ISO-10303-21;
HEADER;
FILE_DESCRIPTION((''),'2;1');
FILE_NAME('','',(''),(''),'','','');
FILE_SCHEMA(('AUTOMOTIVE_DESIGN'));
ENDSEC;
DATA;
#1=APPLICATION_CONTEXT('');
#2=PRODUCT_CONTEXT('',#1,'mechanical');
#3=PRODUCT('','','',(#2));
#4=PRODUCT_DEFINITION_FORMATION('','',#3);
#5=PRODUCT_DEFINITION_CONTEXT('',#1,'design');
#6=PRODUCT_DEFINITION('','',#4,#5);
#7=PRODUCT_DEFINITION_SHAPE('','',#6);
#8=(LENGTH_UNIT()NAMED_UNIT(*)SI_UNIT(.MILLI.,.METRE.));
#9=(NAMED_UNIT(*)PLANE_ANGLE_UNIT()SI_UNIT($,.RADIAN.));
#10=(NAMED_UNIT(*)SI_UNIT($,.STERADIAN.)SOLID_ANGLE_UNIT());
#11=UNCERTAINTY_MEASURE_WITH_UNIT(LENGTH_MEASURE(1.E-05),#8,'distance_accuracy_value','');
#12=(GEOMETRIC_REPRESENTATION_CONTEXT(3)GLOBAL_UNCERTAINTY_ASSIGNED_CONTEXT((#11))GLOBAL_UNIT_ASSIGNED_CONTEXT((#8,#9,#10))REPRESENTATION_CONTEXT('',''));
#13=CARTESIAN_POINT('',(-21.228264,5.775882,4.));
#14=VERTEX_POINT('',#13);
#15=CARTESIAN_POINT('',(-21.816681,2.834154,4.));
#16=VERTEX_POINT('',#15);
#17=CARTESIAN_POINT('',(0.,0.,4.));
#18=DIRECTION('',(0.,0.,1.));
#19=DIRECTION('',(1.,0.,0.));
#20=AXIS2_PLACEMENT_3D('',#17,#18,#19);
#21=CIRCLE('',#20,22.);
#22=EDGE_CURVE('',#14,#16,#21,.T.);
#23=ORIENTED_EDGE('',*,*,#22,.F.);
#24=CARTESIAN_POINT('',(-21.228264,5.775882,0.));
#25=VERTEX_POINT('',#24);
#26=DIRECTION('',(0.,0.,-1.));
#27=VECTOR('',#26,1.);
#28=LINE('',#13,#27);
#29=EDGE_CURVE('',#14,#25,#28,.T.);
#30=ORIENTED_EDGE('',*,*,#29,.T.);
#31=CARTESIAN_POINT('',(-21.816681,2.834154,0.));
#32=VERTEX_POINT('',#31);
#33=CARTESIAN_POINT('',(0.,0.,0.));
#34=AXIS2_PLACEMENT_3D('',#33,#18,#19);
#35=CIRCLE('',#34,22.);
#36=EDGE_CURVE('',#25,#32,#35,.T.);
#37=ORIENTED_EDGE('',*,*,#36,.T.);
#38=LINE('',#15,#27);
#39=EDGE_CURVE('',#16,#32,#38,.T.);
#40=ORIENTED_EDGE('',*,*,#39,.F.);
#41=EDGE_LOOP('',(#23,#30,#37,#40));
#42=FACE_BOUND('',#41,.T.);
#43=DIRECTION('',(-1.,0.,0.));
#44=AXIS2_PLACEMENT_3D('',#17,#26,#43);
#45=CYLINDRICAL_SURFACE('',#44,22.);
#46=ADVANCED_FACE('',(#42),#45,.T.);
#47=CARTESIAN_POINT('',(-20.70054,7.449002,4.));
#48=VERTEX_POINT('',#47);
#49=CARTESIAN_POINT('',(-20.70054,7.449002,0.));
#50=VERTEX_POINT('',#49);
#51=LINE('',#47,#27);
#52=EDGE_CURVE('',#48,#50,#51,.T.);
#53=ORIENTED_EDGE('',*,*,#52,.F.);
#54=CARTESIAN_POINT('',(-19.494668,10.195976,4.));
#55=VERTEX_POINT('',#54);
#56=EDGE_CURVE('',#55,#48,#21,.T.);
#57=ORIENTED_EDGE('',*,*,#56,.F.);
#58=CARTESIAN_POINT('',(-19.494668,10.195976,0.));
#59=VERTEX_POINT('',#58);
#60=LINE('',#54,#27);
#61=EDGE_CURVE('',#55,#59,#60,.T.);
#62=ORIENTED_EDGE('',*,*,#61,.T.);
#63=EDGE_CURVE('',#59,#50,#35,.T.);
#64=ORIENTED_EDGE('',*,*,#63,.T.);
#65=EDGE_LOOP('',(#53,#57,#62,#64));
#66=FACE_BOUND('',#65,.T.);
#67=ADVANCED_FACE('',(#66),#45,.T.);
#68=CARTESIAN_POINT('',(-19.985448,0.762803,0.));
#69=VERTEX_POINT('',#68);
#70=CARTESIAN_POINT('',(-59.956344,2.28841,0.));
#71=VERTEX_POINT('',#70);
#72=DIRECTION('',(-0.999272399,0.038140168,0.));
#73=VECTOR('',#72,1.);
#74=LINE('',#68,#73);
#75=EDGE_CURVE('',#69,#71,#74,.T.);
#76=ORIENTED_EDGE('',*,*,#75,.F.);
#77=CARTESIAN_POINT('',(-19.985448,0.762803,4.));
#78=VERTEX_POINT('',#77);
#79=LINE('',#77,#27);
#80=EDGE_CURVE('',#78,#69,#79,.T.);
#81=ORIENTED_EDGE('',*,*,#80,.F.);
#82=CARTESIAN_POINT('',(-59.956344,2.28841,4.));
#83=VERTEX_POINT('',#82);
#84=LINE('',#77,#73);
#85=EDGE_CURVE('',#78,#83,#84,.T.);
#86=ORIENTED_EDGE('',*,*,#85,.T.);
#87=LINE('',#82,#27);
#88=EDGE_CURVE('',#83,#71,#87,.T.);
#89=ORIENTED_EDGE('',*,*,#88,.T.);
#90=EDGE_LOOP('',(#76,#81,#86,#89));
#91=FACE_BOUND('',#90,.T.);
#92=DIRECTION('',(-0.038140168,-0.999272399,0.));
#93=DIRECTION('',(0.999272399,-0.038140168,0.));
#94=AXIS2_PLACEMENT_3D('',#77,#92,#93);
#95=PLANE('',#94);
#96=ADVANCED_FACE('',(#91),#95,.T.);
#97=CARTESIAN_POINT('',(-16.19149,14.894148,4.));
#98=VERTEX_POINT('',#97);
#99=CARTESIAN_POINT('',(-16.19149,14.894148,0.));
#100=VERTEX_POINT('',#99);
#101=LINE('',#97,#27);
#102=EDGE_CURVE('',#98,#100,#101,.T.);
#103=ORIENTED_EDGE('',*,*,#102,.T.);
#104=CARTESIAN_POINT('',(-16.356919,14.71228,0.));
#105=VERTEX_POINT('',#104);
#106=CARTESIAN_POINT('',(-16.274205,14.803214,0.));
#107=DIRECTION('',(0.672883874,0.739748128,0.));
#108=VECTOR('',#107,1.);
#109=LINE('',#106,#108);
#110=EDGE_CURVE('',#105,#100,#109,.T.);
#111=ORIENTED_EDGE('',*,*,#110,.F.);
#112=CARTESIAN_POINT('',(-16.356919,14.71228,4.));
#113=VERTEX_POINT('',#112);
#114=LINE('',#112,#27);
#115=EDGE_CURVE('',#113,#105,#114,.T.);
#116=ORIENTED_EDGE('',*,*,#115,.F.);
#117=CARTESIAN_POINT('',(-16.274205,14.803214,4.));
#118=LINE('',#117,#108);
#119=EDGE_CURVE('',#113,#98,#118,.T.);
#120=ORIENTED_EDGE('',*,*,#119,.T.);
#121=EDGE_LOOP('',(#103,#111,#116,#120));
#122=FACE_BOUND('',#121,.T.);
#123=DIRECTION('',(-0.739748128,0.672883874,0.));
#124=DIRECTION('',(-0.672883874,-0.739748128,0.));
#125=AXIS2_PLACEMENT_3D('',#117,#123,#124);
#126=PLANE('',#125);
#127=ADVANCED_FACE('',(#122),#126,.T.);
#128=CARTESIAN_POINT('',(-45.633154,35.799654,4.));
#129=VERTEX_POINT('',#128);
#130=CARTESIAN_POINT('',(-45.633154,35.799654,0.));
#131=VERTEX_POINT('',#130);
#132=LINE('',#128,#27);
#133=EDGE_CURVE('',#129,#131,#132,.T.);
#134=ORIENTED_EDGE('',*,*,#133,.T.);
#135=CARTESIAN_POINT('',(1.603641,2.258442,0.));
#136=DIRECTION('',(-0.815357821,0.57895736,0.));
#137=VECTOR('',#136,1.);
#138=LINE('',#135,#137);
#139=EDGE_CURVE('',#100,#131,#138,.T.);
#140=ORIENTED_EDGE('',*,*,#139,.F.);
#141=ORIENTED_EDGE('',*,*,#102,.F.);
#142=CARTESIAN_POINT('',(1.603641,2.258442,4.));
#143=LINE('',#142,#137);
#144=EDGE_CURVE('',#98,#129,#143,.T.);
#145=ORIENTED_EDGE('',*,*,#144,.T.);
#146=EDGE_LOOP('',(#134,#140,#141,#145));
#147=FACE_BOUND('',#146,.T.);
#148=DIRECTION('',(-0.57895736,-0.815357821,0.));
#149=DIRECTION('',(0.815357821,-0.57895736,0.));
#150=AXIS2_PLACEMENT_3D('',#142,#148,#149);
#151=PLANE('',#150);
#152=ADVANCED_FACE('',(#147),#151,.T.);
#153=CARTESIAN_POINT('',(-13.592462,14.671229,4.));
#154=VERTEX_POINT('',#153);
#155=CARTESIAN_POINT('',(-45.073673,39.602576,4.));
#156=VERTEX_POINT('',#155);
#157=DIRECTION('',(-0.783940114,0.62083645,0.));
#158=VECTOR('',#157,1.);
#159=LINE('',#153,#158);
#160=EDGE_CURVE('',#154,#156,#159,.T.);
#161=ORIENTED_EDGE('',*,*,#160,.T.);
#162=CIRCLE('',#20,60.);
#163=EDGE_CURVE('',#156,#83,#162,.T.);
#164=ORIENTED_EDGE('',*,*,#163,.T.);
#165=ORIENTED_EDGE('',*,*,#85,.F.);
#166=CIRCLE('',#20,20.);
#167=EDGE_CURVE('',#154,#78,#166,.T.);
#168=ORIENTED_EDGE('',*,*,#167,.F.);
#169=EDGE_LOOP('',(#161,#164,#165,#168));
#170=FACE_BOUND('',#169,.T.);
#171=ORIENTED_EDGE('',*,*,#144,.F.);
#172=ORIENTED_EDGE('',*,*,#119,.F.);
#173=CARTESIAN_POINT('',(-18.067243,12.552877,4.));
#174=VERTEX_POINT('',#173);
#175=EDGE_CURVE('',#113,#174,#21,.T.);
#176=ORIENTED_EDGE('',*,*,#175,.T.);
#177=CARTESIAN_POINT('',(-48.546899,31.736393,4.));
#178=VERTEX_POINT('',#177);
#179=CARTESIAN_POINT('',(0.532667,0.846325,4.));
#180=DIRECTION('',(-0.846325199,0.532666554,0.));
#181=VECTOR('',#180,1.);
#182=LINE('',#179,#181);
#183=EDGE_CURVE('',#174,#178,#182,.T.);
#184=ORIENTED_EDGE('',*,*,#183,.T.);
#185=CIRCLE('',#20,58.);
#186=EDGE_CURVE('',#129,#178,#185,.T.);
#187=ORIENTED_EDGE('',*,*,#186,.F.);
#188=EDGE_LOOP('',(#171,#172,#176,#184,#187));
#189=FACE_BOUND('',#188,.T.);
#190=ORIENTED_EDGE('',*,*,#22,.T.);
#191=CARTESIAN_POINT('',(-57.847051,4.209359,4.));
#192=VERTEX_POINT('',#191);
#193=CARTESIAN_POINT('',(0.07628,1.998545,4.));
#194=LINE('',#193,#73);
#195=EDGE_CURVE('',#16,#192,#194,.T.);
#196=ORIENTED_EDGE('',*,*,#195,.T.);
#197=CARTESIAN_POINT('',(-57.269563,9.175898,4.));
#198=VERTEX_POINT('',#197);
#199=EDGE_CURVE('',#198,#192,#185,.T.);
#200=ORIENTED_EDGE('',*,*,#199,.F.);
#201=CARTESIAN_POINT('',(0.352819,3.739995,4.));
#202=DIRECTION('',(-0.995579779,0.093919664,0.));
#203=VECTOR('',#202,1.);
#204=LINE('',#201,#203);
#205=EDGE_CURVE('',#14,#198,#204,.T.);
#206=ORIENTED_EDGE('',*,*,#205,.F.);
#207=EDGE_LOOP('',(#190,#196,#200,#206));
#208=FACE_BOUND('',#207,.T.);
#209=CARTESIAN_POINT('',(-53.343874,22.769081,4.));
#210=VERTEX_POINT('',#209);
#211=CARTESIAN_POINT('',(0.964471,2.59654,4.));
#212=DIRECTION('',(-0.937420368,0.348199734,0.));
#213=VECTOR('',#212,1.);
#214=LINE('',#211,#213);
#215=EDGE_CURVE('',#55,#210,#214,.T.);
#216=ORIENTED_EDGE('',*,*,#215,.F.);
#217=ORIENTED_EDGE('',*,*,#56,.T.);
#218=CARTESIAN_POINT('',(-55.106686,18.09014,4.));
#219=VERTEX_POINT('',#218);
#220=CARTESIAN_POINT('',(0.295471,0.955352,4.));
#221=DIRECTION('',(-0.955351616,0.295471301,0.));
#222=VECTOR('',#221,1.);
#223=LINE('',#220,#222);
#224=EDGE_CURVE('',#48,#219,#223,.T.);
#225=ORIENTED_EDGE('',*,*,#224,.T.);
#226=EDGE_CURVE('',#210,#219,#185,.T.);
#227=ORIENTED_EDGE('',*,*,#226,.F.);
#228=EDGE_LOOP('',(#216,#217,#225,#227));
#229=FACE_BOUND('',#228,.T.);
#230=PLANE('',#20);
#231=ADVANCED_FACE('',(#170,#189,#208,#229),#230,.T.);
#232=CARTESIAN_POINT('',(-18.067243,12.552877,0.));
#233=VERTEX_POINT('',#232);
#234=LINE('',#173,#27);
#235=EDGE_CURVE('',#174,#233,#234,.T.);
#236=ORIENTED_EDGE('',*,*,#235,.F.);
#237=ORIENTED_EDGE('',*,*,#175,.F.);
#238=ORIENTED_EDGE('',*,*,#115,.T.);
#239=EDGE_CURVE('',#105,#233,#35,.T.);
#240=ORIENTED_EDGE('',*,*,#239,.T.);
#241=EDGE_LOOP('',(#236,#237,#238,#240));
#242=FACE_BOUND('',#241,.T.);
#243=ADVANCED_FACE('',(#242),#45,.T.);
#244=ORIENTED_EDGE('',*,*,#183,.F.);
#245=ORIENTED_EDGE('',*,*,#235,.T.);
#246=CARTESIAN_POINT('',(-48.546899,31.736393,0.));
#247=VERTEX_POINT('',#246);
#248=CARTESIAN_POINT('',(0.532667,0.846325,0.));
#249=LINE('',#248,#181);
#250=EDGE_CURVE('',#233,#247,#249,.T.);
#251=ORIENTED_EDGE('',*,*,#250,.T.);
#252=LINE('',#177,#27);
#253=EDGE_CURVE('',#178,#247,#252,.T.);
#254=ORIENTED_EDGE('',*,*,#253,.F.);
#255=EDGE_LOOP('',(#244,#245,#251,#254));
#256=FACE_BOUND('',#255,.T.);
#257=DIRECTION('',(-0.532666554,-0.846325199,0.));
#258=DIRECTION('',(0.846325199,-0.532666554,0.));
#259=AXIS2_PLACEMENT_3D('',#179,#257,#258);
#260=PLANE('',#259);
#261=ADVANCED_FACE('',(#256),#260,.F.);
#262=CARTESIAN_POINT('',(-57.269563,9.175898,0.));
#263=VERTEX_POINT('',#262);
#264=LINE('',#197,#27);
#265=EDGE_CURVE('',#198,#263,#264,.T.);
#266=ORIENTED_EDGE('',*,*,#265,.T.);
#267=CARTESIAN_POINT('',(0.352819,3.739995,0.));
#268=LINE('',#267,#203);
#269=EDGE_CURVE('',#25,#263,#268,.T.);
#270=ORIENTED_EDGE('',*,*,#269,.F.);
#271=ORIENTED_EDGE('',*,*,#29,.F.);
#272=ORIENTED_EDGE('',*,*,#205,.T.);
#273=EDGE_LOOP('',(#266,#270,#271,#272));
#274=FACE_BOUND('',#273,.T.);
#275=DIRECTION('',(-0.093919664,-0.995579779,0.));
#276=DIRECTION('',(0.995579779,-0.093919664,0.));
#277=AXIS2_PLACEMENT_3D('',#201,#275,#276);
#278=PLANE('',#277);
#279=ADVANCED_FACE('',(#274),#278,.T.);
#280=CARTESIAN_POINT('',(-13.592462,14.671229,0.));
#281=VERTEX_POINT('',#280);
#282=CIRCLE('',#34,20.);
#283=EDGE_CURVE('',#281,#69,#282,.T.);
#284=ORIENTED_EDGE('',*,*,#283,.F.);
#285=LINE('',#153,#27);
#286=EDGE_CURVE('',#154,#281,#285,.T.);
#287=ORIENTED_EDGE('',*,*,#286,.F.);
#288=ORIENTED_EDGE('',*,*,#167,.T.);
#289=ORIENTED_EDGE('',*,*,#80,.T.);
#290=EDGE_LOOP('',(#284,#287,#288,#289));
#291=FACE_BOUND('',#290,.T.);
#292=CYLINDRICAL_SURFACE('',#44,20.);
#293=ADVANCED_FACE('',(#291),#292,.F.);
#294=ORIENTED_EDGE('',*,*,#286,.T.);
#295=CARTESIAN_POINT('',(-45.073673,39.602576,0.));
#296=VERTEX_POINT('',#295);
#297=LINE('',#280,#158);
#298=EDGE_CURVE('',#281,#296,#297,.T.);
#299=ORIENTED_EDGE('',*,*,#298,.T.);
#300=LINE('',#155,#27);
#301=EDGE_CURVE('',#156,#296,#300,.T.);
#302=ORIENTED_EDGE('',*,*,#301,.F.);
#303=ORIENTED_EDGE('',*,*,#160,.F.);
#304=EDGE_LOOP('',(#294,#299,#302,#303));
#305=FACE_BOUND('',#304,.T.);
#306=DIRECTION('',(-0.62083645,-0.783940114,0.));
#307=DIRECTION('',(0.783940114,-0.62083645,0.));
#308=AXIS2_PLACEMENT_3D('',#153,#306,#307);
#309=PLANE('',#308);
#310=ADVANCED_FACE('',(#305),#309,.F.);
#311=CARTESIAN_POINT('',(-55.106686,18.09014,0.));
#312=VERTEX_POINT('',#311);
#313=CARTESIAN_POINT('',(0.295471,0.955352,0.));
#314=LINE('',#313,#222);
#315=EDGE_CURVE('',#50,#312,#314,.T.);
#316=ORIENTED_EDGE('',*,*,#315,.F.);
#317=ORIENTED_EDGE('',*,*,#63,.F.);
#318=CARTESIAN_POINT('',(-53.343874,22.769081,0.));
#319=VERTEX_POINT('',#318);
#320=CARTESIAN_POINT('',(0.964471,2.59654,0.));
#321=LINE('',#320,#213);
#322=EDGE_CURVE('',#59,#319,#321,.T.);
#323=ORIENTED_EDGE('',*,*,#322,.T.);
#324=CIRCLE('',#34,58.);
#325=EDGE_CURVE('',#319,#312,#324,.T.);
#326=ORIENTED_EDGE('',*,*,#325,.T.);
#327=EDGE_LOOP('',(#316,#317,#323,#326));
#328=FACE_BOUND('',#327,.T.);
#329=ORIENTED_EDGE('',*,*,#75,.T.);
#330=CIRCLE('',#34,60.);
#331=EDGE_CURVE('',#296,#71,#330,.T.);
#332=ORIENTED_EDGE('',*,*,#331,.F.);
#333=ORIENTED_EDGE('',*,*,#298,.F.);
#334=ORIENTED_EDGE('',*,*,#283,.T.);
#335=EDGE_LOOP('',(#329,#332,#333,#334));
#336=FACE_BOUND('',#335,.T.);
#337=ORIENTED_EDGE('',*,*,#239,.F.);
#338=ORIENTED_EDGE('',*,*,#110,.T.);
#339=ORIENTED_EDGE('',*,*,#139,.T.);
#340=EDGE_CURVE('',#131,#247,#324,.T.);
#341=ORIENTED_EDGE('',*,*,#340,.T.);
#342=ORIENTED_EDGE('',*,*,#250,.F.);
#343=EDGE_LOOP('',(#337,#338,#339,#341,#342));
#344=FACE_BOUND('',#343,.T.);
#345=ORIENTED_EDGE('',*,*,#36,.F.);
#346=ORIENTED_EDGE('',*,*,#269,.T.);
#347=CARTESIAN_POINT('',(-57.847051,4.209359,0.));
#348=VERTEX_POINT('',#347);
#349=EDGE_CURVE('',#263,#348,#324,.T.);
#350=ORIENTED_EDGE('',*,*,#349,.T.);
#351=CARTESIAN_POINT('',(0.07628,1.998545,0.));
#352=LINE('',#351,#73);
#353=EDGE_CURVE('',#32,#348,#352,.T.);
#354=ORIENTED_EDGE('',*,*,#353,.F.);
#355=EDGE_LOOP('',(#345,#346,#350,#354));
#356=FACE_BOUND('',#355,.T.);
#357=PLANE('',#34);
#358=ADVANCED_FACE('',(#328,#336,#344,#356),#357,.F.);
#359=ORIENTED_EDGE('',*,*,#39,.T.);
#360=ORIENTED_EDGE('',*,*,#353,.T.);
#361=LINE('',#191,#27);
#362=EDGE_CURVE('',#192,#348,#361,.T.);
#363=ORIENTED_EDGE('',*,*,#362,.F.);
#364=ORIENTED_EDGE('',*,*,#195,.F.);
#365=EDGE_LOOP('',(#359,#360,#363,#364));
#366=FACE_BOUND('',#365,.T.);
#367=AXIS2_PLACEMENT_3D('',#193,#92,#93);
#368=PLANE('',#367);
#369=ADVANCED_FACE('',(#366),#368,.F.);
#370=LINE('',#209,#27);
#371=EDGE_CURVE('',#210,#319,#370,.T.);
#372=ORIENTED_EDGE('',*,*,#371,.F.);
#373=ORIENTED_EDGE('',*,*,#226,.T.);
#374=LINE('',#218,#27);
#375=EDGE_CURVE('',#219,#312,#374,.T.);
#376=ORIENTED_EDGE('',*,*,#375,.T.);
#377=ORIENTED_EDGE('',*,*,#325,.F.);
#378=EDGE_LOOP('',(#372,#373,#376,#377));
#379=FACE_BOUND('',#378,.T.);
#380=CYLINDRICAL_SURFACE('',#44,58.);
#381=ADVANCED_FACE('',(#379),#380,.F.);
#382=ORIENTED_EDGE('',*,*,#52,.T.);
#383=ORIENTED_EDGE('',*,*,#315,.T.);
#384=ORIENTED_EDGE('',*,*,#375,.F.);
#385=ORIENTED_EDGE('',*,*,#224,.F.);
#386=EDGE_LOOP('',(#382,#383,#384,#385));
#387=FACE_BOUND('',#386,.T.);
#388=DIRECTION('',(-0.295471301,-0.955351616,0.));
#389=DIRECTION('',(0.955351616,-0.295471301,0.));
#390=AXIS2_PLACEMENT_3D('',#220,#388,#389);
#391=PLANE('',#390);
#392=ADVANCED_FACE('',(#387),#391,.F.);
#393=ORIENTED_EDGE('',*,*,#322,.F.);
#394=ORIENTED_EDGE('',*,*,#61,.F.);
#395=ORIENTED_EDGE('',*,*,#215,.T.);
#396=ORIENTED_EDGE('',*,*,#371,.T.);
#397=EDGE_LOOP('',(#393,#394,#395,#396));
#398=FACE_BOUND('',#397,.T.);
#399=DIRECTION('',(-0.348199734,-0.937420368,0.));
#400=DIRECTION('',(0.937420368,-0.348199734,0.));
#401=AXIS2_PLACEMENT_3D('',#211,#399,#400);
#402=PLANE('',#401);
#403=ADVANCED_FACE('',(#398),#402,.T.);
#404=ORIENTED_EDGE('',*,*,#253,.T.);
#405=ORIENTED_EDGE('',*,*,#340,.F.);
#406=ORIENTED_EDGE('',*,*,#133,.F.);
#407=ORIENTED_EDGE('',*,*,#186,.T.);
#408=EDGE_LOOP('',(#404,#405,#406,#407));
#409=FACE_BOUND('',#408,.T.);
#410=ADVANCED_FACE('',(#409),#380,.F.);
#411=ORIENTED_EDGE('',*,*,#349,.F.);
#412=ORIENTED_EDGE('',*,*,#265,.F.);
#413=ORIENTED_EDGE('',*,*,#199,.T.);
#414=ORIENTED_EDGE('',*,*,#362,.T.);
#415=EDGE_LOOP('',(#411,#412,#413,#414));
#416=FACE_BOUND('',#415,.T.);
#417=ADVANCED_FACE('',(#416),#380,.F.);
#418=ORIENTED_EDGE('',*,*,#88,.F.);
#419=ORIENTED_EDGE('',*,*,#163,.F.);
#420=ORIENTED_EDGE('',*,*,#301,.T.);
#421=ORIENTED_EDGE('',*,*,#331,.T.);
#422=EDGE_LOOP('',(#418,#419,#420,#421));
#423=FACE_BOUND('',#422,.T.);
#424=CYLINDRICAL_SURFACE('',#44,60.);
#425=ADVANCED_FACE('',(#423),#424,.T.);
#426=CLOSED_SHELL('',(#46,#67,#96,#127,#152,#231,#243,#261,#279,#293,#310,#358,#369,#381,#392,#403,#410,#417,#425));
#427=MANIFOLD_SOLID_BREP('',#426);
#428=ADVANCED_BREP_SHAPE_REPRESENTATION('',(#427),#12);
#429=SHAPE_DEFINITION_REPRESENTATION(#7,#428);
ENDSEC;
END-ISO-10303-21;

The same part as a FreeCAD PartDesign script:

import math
import FreeCAD as App
import Part
import Sketcher

doc = App.newDocument("Part")
body = doc.addObject("PartDesign::Body", "Body")

# Sketch on XY plane
sketch1 = doc.addObject("Sketcher::SketchObject", "Sketch")
body.addObject(sketch1)
sketch1.AttachmentSupport = (doc.XY_Plane, [""])
sketch1.MapMode = "FlatFace"
sketch1.addGeometry([
    Part.LineSegment(App.Vector(-60, 2, 0), App.Vector(-20, 1, 0)),
    Part.ArcOfCircle(Part.Circle(App.Vector(0, 0, 0), App.Vector(0, 0, 1), 20), math.radians(133), math.radians(178)),
    Part.LineSegment(App.Vector(-14, 15, 0), App.Vector(-45, 40, 0)),
    Part.ArcOfCircle(Part.Circle(App.Vector(0, 0, 0), App.Vector(0, 0, 1), 60), math.radians(139), math.radians(178)),
], False)
sketch1.addConstraint([
    Sketcher.Constraint("Coincident", 0, 2, 1, 2),
    Sketcher.Constraint("Coincident", 1, 1, 2, 1),
    Sketcher.Constraint("Coincident", 2, 2, 3, 1),
    Sketcher.Constraint("Coincident", 3, 2, 0, 1),
    Sketcher.Constraint("Coincident", 1, 3, -1, 1),
    Sketcher.Constraint("Coincident", 3, 3, -1, 1),
    Sketcher.Constraint("Radius", 1, 20.0),
    Sketcher.Constraint("Radius", 3, 60.0),
    Sketcher.Constraint("DistanceY", -1, 1, 1, 1, 14.671229),
    Sketcher.Constraint("DistanceY", -1, 1, 3, 2, 2.28841),
    Sketcher.Constraint("DistanceX", 2, 2, 1, 1, 31.48121),
    Sketcher.Constraint("DistanceX", 0, 2, -1, 1, 19.985448),
])
pad1 = doc.addObject("PartDesign::Pad", "Pad")
body.addObject(pad1)
pad1.Profile = sketch1
pad1.Length = 4

# Sketch on XY plane
sketch2 = doc.addObject("Sketcher::SketchObject", "Sketch001")
body.addObject(sketch2)
sketch2.AttachmentSupport = (doc.XY_Plane, [""])
sketch2.MapMode = "FlatFace"
sketch2.addGeometry([
    Part.ArcOfCircle(Part.Circle(App.Vector(0, 0, 0), App.Vector(0, 0, 1), 22), math.radians(152.39), math.radians(160.21)),  # 0
    Part.LineSegment(App.Vector(-19.49, 10.2, 0), App.Vector(-53.34, 22.77, 0)),  # 1
    Part.ArcOfCircle(Part.Circle(App.Vector(0, 0, 0), App.Vector(0, 0, 1), 58), math.radians(156.89), math.radians(161.83)),  # 2
    Part.LineSegment(App.Vector(-55.11, 18.09, 0), App.Vector(-20.7, 7.45, 0)),  # 3
    Part.LineSegment(App.Vector(-21.23, 5.78, 0), App.Vector(-57.27, 9.18, 0)),  # 4
    Part.ArcOfCircle(Part.Circle(App.Vector(0, 0, 0), App.Vector(0, 0, 1), 58), math.radians(170.9), math.radians(175.84)),  # 5
    Part.LineSegment(App.Vector(-57.85, 4.21, 0), App.Vector(-21.82, 2.83, 0)),  # 6
    Part.ArcOfCircle(Part.Circle(App.Vector(0, 0, 0), App.Vector(0, 0, 1), 22), math.radians(164.78), math.radians(172.6)),  # 7
    Part.ArcOfCircle(Part.Circle(App.Vector(0, 0, 0), App.Vector(0, 0, 1), 22), math.radians(138.03), math.radians(145.21)),  # 8
    Part.LineSegment(App.Vector(-16.36, 14.71, 0), App.Vector(-16.19, 14.89, 0)),  # 9
    Part.LineSegment(App.Vector(-16.19, 14.89, 0), App.Vector(-45.63, 35.8, 0)),  # 10
    Part.ArcOfCircle(Part.Circle(App.Vector(0, 0, 0), App.Vector(0, 0, 1), 58), math.radians(141.89), math.radians(146.83)),  # 11
    Part.LineSegment(App.Vector(-48.55, 31.74, 0), App.Vector(-18.07, 12.55, 0)),  # 12
], False)
sketch2.addConstraint([
    Sketcher.Constraint("Coincident", 0, 1, 1, 1),
    Sketcher.Constraint("Coincident", 1, 2, 2, 1),
    Sketcher.Constraint("Coincident", 2, 2, 3, 1),
    Sketcher.Constraint("Coincident", 3, 2, 0, 2),
    Sketcher.Constraint("Coincident", 4, 2, 5, 1),
    Sketcher.Constraint("Coincident", 5, 2, 6, 1),
    Sketcher.Constraint("Coincident", 6, 2, 7, 2),
    Sketcher.Constraint("Coincident", 7, 1, 4, 1),
    Sketcher.Constraint("Coincident", 8, 1, 9, 1),
    Sketcher.Constraint("Coincident", 9, 2, 10, 1),
    Sketcher.Constraint("Coincident", 10, 2, 11, 1),
    Sketcher.Constraint("Coincident", 11, 2, 12, 1),
    Sketcher.Constraint("Coincident", 12, 2, 8, 2),
    Sketcher.Constraint("Coincident", 0, 3, -1, 1),
    Sketcher.Constraint("Coincident", 2, 3, -1, 1),
    Sketcher.Constraint("Coincident", 5, 3, -1, 1),
    Sketcher.Constraint("Coincident", 7, 3, -1, 1),
    Sketcher.Constraint("Coincident", 8, 3, -1, 1),
    Sketcher.Constraint("Coincident", 11, 3, -1, 1),
    Sketcher.Constraint("Equal", 2, 5),
    Sketcher.Constraint("Equal", 0, 7),
    Sketcher.Constraint("Equal", 7, 8),
    Sketcher.Constraint("Equal", 5, 11),
    Sketcher.Constraint("Equal", 1, 10),
    Sketcher.Constraint("Equal", 3, 12),
    Sketcher.Constraint("Radius", 0, 22.0),
    Sketcher.Constraint("Radius", 2, 58.0),
    Sketcher.Constraint("DistanceY", -1, 1, 3, 2, 7.449002),
    Sketcher.Constraint("DistanceX", 11, 2, -1, 1, 48.546899),
    Sketcher.Constraint("DistanceY", 0, 1, 12, 2, 2.356901),
    Sketcher.Constraint("Distance", 9, 0.245851),
    Sketcher.Constraint("DistanceY", -1, 1, 1, 2, 22.769081),
    Sketcher.Constraint("DistanceY", -1, 1, 2, 2, 18.09014),
    Sketcher.Constraint("DistanceX", 5, 2, -1, 1, 57.847051),
    Sketcher.Constraint("DistanceX", 6, 2, -1, 1, 21.816681),
    Sketcher.Constraint("DistanceX", 8, 1, -1, 1, 16.356919),
    Sketcher.Constraint("DistanceX", 9, 2, -1, 1, 16.19149),
    Sketcher.Constraint("DistanceY", 4, 2, 2, 2, 8.914242),
    Sketcher.Constraint("DistanceY", 7, 1, 3, 2, 1.673119),
])
pocket1 = doc.addObject("PartDesign::Pocket", "Pocket")
body.addObject(pocket1)
pocket1.Profile = sketch2
pocket1.Type = "ThroughAll"
pocket1.Reversed = True

doc.recompute()
